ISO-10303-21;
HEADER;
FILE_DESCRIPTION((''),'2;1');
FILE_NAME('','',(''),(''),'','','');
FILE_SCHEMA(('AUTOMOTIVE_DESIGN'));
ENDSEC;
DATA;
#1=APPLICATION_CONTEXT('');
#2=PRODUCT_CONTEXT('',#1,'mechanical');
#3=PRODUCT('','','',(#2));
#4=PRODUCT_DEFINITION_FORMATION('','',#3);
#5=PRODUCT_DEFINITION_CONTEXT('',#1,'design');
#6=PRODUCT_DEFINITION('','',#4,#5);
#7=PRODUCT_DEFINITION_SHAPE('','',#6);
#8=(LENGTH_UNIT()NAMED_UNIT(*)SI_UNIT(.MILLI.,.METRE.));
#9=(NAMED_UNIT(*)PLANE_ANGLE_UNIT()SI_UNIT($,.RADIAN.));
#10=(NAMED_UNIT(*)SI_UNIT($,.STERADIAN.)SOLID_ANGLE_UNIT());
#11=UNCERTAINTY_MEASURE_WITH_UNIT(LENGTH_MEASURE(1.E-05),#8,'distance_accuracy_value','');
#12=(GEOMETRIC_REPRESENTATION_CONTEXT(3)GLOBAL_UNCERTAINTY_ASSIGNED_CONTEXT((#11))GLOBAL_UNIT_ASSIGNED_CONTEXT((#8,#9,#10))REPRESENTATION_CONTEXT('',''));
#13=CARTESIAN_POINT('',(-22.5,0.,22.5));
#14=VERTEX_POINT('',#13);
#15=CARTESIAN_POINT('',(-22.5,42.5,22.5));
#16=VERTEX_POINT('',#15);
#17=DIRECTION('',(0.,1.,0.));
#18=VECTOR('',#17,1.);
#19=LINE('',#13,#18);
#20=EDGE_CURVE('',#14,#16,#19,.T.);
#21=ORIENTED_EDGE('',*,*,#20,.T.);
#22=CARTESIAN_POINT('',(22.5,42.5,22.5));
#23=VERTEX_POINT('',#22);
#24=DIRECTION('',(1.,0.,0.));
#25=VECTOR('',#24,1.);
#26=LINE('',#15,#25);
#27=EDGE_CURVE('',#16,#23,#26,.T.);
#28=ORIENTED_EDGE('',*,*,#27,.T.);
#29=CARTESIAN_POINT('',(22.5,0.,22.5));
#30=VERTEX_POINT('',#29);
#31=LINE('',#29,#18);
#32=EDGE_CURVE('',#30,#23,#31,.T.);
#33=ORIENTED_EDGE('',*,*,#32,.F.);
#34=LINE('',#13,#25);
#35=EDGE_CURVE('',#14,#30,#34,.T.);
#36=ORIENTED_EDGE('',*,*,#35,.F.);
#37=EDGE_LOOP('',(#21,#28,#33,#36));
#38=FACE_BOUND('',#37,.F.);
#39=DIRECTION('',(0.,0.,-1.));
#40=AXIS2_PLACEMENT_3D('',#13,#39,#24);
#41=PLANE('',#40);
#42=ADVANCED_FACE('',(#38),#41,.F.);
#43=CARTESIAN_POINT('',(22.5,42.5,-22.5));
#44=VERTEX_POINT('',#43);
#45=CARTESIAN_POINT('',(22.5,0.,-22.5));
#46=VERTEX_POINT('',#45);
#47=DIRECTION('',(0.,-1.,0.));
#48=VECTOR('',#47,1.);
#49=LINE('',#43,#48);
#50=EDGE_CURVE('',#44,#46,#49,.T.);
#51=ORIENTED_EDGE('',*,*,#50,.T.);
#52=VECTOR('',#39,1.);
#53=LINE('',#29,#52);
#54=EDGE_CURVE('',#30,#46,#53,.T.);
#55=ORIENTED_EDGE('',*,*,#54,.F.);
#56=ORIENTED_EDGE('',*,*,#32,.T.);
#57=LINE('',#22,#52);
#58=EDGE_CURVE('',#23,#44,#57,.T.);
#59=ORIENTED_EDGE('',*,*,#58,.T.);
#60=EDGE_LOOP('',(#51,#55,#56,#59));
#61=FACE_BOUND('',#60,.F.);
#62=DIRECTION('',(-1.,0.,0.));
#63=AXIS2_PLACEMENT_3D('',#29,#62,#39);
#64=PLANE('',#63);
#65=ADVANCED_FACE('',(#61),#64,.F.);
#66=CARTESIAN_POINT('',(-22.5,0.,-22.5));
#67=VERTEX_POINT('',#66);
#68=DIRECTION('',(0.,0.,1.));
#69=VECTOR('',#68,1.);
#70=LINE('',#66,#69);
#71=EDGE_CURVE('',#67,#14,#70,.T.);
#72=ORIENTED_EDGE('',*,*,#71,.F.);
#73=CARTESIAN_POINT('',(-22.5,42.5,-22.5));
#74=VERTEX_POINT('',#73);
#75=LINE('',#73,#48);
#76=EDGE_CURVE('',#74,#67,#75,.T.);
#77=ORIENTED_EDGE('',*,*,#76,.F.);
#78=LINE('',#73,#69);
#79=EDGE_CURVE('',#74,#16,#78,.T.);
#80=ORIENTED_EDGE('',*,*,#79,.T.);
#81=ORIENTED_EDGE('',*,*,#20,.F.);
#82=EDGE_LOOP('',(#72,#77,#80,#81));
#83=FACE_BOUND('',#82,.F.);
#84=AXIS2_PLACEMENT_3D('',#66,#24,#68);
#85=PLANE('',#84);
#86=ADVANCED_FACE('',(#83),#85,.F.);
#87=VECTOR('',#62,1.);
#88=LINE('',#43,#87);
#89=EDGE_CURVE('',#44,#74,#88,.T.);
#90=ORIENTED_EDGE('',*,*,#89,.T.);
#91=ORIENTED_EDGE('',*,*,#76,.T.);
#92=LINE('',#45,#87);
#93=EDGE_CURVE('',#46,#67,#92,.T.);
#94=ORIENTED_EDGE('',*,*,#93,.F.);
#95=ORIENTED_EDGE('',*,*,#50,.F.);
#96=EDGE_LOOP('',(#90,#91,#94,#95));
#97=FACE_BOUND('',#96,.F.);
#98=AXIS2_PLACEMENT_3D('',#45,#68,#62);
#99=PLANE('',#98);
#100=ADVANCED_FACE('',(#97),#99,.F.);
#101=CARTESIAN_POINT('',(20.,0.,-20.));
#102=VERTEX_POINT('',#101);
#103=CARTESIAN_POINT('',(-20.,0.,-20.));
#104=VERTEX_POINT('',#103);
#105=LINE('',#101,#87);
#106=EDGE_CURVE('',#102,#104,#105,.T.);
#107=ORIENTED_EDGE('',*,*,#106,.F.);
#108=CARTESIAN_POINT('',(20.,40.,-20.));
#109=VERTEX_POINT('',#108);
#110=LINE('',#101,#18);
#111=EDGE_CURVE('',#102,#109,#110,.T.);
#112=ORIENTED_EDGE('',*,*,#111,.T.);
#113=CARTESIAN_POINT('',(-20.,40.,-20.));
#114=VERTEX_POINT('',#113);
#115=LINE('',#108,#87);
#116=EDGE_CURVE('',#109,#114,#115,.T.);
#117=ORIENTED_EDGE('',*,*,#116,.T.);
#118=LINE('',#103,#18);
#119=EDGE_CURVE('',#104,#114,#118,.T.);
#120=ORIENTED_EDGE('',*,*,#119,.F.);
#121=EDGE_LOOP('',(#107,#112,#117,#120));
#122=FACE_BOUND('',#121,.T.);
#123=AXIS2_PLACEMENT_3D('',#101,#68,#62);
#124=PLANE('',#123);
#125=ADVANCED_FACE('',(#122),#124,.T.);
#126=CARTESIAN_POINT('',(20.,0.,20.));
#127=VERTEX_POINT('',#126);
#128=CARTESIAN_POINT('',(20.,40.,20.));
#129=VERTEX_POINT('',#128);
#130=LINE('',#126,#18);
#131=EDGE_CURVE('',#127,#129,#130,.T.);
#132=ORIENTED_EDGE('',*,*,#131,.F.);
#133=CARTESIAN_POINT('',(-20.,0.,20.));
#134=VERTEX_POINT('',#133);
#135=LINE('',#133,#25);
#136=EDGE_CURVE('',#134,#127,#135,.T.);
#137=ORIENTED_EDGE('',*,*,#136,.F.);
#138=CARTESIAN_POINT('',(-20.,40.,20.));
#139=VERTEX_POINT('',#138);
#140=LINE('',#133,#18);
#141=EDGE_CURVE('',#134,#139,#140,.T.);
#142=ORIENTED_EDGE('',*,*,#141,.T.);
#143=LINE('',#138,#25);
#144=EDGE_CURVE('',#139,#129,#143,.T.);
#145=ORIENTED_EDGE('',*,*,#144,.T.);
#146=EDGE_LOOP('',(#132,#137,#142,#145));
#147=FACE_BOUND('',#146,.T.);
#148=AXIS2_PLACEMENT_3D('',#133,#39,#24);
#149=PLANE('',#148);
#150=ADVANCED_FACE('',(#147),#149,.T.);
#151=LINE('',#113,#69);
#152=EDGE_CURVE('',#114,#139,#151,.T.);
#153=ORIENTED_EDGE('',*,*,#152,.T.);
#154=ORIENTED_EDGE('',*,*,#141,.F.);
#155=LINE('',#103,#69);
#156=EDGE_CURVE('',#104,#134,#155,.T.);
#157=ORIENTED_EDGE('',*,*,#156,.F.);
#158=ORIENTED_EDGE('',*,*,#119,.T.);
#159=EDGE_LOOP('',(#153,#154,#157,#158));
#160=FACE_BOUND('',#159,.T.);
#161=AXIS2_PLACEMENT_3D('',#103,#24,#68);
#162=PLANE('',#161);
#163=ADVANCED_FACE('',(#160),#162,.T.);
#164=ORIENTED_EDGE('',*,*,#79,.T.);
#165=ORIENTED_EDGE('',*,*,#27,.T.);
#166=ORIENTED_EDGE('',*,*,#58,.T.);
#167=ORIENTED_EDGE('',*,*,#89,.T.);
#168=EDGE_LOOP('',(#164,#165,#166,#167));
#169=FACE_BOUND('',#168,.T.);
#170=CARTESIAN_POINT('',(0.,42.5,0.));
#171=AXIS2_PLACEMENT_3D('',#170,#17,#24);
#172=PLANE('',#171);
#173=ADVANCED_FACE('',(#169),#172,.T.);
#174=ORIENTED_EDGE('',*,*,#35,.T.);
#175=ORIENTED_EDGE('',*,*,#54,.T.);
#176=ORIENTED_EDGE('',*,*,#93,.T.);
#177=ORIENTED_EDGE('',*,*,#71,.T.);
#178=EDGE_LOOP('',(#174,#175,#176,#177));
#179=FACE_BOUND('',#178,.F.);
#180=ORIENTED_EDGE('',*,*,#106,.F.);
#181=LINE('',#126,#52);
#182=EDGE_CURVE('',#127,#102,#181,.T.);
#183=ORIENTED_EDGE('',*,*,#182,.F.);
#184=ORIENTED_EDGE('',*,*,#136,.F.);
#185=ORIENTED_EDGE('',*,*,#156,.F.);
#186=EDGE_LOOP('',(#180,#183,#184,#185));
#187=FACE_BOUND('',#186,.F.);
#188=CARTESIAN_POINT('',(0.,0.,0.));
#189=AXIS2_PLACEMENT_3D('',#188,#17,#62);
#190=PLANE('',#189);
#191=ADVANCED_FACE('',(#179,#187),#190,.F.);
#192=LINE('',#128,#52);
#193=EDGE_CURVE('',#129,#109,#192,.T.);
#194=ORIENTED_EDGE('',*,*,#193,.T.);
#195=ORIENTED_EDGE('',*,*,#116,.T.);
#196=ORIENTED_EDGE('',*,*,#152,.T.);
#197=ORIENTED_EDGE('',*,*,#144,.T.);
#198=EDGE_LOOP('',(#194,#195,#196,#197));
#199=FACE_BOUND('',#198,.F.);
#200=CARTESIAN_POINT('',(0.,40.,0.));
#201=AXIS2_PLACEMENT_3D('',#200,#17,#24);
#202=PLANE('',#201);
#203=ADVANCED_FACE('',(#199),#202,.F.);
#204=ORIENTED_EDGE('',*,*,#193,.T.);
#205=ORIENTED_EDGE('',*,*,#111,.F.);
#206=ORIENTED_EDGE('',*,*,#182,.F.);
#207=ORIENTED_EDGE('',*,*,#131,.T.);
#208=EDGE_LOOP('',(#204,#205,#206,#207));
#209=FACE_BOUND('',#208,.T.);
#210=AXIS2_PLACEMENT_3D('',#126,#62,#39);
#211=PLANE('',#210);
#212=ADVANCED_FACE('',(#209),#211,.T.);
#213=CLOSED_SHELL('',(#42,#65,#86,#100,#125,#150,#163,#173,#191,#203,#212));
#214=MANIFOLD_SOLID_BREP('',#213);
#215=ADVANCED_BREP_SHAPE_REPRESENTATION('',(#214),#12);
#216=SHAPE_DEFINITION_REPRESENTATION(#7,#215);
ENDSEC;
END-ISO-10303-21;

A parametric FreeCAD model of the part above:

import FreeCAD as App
import Part
import Sketcher

V = App.Vector


def add_polygon(sketch, points):
    """Adds a closed chain of lines whose ends are joined by coincident constraints."""
    first, n = sketch.GeometryCount, len(points)
    for a, b in zip(points, points[1:] + points[:1]):
        sketch.addGeometry(Part.LineSegment(App.Vector(*a, 0), App.Vector(*b, 0)), False)
    for i in range(n):
        sketch.addConstraint(Sketcher.Constraint("Coincident", first + i, 2, first + (i + 1) % n, 1))

doc = App.newDocument("Part")
params = doc.addObject("Spreadsheet::Sheet", "Params")
for row, (alias, value) in enumerate([
    ("sketch1_width", "45 mm"),
    ("sketch1_width2", "40 mm"),
    ("pad1_length", "40 mm"),
    ("sketch2_width", "45 mm"),
    ("pad2_length", "2.5 mm"),
], start=1):
    params.set(f"A{row}", alias)
    params.set(f"B{row}", "=" + value)
    params.setAlias(f"B{row}", alias)

body = doc.addObject("PartDesign::Body", "Body")

# Sketch on XZ plane
sketch1 = body.newObject("Sketcher::SketchObject", "Sketch")
sketch1.AttachmentSupport = (doc.getObject("XZ_Plane"), [""])
sketch1.MapMode = "FlatFace"
add_polygon(sketch1, [(-22, -22), (-22, 22), (22, 22), (22, -22)])  # lines 0-3
add_polygon(sketch1, [(20, 20), (-20, 20), (-20, -20), (20, -20)])  # lines 4-7
sketch1.addConstraint(Sketcher.Constraint("Vertical", 0))
sketch1.addConstraint(Sketcher.Constraint("Horizontal", 1))
sketch1.addConstraint(Sketcher.Constraint("Vertical", 2))
sketch1.addConstraint(Sketcher.Constraint("Horizontal", 3))
sketch1.addConstraint(Sketcher.Constraint("Horizontal", 4))
sketch1.addConstraint(Sketcher.Constraint("Vertical", 5))
sketch1.addConstraint(Sketcher.Constraint("Horizontal", 6))
sketch1.addConstraint(Sketcher.Constraint("Vertical", 7))
sketch1.addConstraint(Sketcher.Constraint("Symmetric", 0, 2, 2, 2, -1, 1))
sketch1.addConstraint(Sketcher.Constraint("Symmetric", 4, 2, 6, 2, -1, 1))
sketch1.addConstraint(Sketcher.Constraint("Equal", 3, 0))
sketch1.addConstraint(Sketcher.Constraint("Equal", 6, 5))
sketch1.addConstraint(Sketcher.Constraint("DistanceX", 1, 1, 1, 2, 45.0))
sketch1.addConstraint(Sketcher.Constraint("DistanceX", 4, 2, 4, 1, 40.0))
sketch1.setExpression("Constraints[20]", "Params.sketch1_width")
sketch1.setExpression("Constraints[21]", "Params.sketch1_width2")
pad1 = body.newObject("PartDesign::Pad", "Pad")
pad1.Profile = sketch1
pad1.setExpression("Length", "Params.pad1_length")
pad1.Reversed = True

# Sketch on XZ plane
sketch2 = body.newObject("Sketcher::SketchObject", "Sketch001")
sketch2.AttachmentSupport = (doc.getObject("XZ_Plane"), [""])
sketch2.MapMode = "FlatFace"
sketch2.AttachmentOffset = App.Placement(V(0, 0, -40), App.Rotation())
add_polygon(sketch2, [(22, -22), (-22, -22), (-22, 22), (22, 22)])  # lines 0-3
sketch2.addConstraint(Sketcher.Constraint("Horizontal", 0))
sketch2.addConstraint(Sketcher.Constraint("Vertical", 1))
sketch2.addConstraint(Sketcher.Constraint("Horizontal", 2))
sketch2.addConstraint(Sketcher.Constraint("Vertical", 3))
sketch2.addConstraint(Sketcher.Constraint("Symmetric", 0, 2, 2, 2, -1, 1))
sketch2.addConstraint(Sketcher.Constraint("Equal", 2, 1))
sketch2.addConstraint(Sketcher.Constraint("DistanceX", 0, 2, 0, 1, 45.0))
sketch2.setExpression("Constraints[10]", "Params.sketch2_width")
pad2 = body.newObject("PartDesign::Pad", "Pad001")
pad2.Profile = sketch2
pad2.setExpression("Length", "Params.pad2_length")
pad2.Reversed = True

doc.recompute()
